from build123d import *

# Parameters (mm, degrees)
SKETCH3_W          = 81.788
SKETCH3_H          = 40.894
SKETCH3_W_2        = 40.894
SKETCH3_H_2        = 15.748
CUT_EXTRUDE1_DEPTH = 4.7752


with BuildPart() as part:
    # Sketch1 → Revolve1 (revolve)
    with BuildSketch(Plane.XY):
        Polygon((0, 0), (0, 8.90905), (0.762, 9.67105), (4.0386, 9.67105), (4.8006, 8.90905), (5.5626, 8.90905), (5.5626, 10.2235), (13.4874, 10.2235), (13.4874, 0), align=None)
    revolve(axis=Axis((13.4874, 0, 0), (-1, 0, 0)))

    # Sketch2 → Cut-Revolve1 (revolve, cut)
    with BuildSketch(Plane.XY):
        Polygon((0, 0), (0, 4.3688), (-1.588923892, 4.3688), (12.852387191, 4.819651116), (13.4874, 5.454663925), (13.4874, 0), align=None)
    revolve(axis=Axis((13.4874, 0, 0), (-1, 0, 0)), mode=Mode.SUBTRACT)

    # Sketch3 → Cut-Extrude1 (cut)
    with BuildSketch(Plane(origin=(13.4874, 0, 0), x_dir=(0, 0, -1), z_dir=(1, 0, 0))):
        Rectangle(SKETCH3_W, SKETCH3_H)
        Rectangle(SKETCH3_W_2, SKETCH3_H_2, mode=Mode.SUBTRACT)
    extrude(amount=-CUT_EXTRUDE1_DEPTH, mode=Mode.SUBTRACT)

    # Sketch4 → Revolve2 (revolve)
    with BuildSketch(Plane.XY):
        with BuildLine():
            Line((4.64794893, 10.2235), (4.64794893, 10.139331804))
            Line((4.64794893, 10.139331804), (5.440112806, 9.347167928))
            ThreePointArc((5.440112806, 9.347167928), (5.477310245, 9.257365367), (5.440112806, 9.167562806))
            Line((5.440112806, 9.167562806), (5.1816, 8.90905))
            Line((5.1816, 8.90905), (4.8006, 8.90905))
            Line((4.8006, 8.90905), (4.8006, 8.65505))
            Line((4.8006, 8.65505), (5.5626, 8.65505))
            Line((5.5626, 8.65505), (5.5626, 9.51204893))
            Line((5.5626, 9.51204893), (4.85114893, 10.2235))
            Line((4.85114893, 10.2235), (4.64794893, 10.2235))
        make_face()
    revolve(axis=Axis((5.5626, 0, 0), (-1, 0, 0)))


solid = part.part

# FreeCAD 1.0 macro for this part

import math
import FreeCAD as App
import Part
import Sketcher

V = App.Vector
Q = App.Units.Quantity


def add_polygon(sketch, points):
    """Adds a closed chain of lines whose ends are joined by coincident constraints."""
    first, n = sketch.GeometryCount, len(points)
    for a, b in zip(points, points[1:] + points[:1]):
        sketch.addGeometry(Part.LineSegment(App.Vector(*a, 0), App.Vector(*b, 0)), False)
    for i in range(n):
        sketch.addConstraint(Sketcher.Constraint("Coincident", first + i, 2, first + (i + 1) % n, 1))

doc = App.newDocument("Part")
body = doc.addObject("PartDesign::Body", "Body")

sketch1 = body.newObject("Sketcher::SketchObject", "Sketch")
sketch1.AttachmentSupport = (doc.getObject("XY_Plane"), [""])
sketch1.MapMode = "FlatFace"
add_polygon(sketch1, [(0, 8.9), (0, 0), (13.5, 0), (13.5, 10.2), (5.6, 10.2), (5.6, 8.9), (4.8, 8.9), (4, 9.7), (0.8, 9.7)])
sketch1.addConstraint([
    Sketcher.Constraint("Vertical", 0),
    Sketcher.Constraint("Horizontal", 1),
    Sketcher.Constraint("Vertical", 2),
    Sketcher.Constraint("Horizontal", 3),
    Sketcher.Constraint("Vertical", 4),
    Sketcher.Constraint("Horizontal", 5),
    Sketcher.Constraint("Horizontal", 7),
    Sketcher.Constraint("Coincident", 0, 2, -1, 1),
    Sketcher.Constraint("Perpendicular", 6, 8),
    Sketcher.Constraint("Horizontal", 5, 2, 8, 2),
    Sketcher.Constraint("Equal", 6, 8),
    Sketcher.Constraint("DistanceX", 5, 2, 5, 1, Q("0.03 in")),
    Sketcher.Constraint("DistanceX", 1, 1, 1, 2, Q("0.531 in")),
    Sketcher.Constraint("DistanceX", 3, 2, 3, 1, Q("0.312 in")),
    Sketcher.Constraint("DistanceX", 7, 2, 7, 1, Q("0.129 in")),
    Sketcher.Constraint("DistanceY", 2, 1, 2, 2, Q("0.4025 in")),
    Sketcher.Constraint("DistanceY", 0, 2, 0, 1, Q("8.90905 mm")),
])
revolution = body.newObject("PartDesign::Revolution", "Revolution")
revolution.Profile = sketch1
revolution.ReferenceAxis = (sketch1, ["H_Axis"])
revolution.Angle = 360

sketch2 = body.newObject("Sketcher::SketchObject", "Sketch001")
sketch2.AttachmentSupport = (doc.getObject("XY_Plane"), [""])
sketch2.MapMode = "FlatFace"
add_polygon(sketch2, [(0, 4.4), (0, 0), (13.5, 0), (13.5, 5.5), (12.9, 4.8), (-1.6, 4.4)])
sketch2.addConstraint([
    Sketcher.Constraint("Vertical", 0),
    Sketcher.Constraint("Horizontal", 1),
    Sketcher.Constraint("Vertical", 2),
    Sketcher.Constraint("Horizontal", 5),
    Sketcher.Constraint("Coincident", 0, 2, -1, 1),
    Sketcher.Constraint("Angle", 3, Q("-135 deg")),
    Sketcher.Constraint("DistanceX", 1, 1, 1, 2, Q("0.531 in")),
    Sketcher.Constraint("DistanceY", 0, 2, 0, 1, Q("0.172 in")),
    Sketcher.Constraint("DistanceX", 5, 1, 5, 2, Q("1.588924 mm")),
    Sketcher.Constraint("DistanceY", 2, 1, 2, 2, Q("5.454664 mm")),
    Sketcher.Constraint("DistanceY", -1, 1, 3, 2, Q("4.819651 mm")),
])
groove = body.newObject("PartDesign::Groove", "Groove")
groove.Profile = sketch2
groove.ReferenceAxis = (sketch2, ["H_Axis"])
groove.Angle = 360

sketch3 = body.newObject("Sketcher::SketchObject", "Sketch002")
sketch3.AttachmentSupport = (doc.getObject("YZ_Plane"), [""])
sketch3.MapMode = "FlatFace"
sketch3.AttachmentOffset = App.Placement(V(0, 0, 0.531 * 25.4), App.Rotation())
add_polygon(sketch3, [(20, 41), (-20, 41), (-20, -41), (20, -41)])
add_polygon(sketch3, [(-8, -20), (-8, 20), (8, 20), (8, -20)])
sketch3.addConstraint([
    Sketcher.Constraint("Horizontal", 0),
    Sketcher.Constraint("Vertical", 1),
    Sketcher.Constraint("Horizontal", 2),
    Sketcher.Constraint("Vertical", 3),
    Sketcher.Constraint("Vertical", 4),
    Sketcher.Constraint("Horizontal", 5),
    Sketcher.Constraint("Vertical", 6),
    Sketcher.Constraint("Horizontal", 7),
    Sketcher.Constraint("Symmetric", 0, 2, 2, 2, -1, 1),
    Sketcher.Constraint("Symmetric", 4, 2, 6, 2, -1, 1),
    Sketcher.Constraint("Equal", 2, 4),
    Sketcher.Constraint("DistanceX", 0, 2, 0, 1, Q("1.61 in")),
    Sketcher.Constraint("DistanceX", 5, 1, 5, 2, Q("0.62 in")),
    Sketcher.Constraint("DistanceY", 1, 2, 1, 1, Q("3.22 in")),
])
pocket1 = body.newObject("PartDesign::Pocket", "Pocket")
pocket1.Profile = sketch3
pocket1.Length = Q("0.188 in")

sketch4 = body.newObject("Sketcher::SketchObject", "Sketch003")
sketch4.AttachmentSupport = (doc.getObject("XY_Plane"), [""])
sketch4.MapMode = "FlatFace"
sketch4.addGeometry([
    Part.LineSegment(V(4.65, 10.22, 0), V(4.65, 10.14, 0)),
    Part.LineSegment(V(4.65, 10.14, 0), V(5.44, 9.35, 0)),
    Part.ArcOfCircle(Part.Circle(V(5.35, 9.26, 0), V(0, 0, 1), 0.13), math.radians(-45), math.radians(45)),
    Part.LineSegment(V(5.44, 9.17, 0), V(5.18, 8.91, 0)),
    Part.LineSegment(V(5.18, 8.91, 0), V(4.8, 8.91, 0)),
    Part.LineSegment(V(4.8, 8.91, 0), V(4.8, 8.66, 0)),
    Part.LineSegment(V(4.8, 8.66, 0), V(5.56, 8.66, 0)),
    Part.LineSegment(V(5.56, 8.66, 0), V(5.56, 9.51, 0)),
    Part.LineSegment(V(5.56, 9.51, 0), V(4.85, 10.22, 0)),
    Part.LineSegment(V(4.85, 10.22, 0), V(4.65, 10.22, 0)),
], False)
sketch4.addConstraint([
    Sketcher.Constraint("Coincident", 0, 2, 1, 1),
    Sketcher.Constraint("Tangent", 1, 2, 2, 2),
    Sketcher.Constraint("Tangent", 2, 1, 3, 1),
    Sketcher.Constraint("Coincident", 3, 2, 4, 1),
    Sketcher.Constraint("Coincident", 4, 2, 5, 1),
    Sketcher.Constraint("Coincident", 5, 2, 6, 1),
    Sketcher.Constraint("Coincident", 6, 2, 7, 1),
    Sketcher.Constraint("Coincident", 7, 2, 8, 1),
    Sketcher.Constraint("Coincident", 8, 2, 9, 1),
    Sketcher.Constraint("Coincident", 9, 2, 0, 1),
    Sketcher.Constraint("Vertical", 0),
    Sketcher.Constraint("Horizontal", 4),
    Sketcher.Constraint("Vertical", 5),
    Sketcher.Constraint("Horizontal", 6),
    Sketcher.Constraint("Vertical", 7),
    Sketcher.Constraint("Horizontal", 9),
    Sketcher.Constraint("Perpendicular", 1, 3),
    Sketcher.Constraint("Perpendicular", 3, 8),
    Sketcher.Constraint("Vertical", 1, 2, 2, 1),
    Sketcher.Constraint("Radius", 2, Q("0.005 in")),
    Sketcher.Constraint("DistanceX", 6, 1, 6, 2, Q("0.03 in")),
    Sketcher.Constraint("DistanceY", 5, 2, 5, 1, Q("0.01 in")),
    Sketcher.Constraint("DistanceX", 4, 2, 4, 1, Q("0.015 in")),
    Sketcher.Constraint("DistanceX", 9, 2, 9, 1, Q("0.008 in")),
    Sketcher.Constraint("DistanceX", -1, 1, 3, 2, Q("0.204 in")),
    Sketcher.Constraint("DistanceY", 7, 1, 7, 2, Q("0.856999 mm")),
    Sketcher.Constraint("DistanceY", -1, 1, 8, 2, Q("0.4025 in")),
    Sketcher.Constraint("DistanceY", 0, 2, 0, 1, Q("0.084168 mm")),
    Sketcher.Constraint("Distance", 1, Q("1.120289 mm")),
])
revolution2 = body.newObject("PartDesign::Revolution", "Revolution001")
revolution2.Profile = sketch4
revolution2.ReferenceAxis = (sketch4, ["H_Axis"])
revolution2.Angle = 360

doc.recompute()
